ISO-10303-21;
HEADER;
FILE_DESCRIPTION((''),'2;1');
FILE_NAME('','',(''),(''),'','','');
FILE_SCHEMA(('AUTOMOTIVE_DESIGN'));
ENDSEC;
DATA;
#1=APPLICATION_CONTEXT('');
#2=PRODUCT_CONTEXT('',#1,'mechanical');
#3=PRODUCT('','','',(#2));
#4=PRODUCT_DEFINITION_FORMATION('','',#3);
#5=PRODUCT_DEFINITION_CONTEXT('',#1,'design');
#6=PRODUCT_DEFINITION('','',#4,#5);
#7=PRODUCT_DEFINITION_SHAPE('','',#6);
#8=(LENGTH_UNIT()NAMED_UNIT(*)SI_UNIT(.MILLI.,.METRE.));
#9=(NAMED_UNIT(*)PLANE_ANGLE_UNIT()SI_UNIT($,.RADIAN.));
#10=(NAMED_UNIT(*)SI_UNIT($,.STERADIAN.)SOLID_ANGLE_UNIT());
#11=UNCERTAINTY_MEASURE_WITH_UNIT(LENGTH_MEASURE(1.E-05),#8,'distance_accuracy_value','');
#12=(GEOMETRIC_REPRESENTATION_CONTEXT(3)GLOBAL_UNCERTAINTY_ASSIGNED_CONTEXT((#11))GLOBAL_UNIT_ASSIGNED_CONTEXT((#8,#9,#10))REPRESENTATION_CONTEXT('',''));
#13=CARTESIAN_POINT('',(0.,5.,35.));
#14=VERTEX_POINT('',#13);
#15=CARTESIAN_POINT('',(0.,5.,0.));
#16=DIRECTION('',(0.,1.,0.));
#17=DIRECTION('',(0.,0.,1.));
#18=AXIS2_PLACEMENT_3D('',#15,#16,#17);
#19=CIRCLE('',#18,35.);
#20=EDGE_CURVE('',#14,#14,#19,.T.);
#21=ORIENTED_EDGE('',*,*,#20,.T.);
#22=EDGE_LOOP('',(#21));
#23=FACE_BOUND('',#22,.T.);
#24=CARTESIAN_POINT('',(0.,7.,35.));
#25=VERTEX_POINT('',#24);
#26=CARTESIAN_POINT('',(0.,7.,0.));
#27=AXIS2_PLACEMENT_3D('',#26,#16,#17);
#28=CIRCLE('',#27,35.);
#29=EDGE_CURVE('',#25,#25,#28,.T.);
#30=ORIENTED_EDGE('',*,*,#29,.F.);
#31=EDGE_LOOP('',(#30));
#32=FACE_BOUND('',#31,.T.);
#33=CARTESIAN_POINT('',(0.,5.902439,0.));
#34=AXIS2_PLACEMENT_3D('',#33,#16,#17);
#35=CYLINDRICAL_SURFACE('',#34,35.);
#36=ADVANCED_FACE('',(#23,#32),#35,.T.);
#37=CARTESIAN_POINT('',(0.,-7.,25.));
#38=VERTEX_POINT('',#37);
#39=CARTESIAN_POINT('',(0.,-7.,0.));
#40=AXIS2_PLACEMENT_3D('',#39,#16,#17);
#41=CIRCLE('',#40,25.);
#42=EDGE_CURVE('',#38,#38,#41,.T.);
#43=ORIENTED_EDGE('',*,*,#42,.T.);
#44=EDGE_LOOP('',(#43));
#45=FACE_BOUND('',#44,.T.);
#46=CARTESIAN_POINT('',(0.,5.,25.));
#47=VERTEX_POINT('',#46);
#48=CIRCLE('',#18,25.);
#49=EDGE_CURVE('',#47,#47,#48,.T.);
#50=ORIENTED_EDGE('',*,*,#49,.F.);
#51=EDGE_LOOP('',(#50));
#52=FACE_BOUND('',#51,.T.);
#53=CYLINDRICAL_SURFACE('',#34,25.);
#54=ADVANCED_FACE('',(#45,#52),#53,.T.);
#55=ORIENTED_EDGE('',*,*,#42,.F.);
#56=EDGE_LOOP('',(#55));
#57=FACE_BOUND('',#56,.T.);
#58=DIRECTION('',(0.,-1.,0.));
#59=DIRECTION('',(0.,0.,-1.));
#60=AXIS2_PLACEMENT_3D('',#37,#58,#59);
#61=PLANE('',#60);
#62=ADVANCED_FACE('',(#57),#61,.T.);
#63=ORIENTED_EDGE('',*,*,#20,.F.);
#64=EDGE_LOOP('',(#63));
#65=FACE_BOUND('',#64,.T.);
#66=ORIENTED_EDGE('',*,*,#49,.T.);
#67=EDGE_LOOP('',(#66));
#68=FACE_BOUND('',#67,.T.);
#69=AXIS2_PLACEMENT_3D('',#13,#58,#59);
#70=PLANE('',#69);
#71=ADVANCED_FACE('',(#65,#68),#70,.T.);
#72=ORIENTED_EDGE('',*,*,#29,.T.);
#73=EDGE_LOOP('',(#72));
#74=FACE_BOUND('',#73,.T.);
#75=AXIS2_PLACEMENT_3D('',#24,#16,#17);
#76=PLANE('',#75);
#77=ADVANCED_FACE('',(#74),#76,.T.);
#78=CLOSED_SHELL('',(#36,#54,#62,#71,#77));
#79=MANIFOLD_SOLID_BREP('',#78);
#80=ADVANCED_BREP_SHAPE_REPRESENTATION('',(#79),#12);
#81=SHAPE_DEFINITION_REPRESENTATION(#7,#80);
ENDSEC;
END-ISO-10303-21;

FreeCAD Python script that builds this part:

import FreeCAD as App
import Part
import Sketcher


def add_polygon(sketch, points):
    """Adds a closed chain of lines whose ends are joined by coincident constraints."""
    first, n = sketch.GeometryCount, len(points)
    for a, b in zip(points, points[1:] + points[:1]):
        sketch.addGeometry(Part.LineSegment(App.Vector(*a, 0), App.Vector(*b, 0)), False)
    for i in range(n):
        sketch.addConstraint(Sketcher.Constraint("Coincident", first + i, 2, first + (i + 1) % n, 1))

doc = App.newDocument("Part")
params = doc.addObject("Spreadsheet::Sheet", "Params")
for row, (alias, value) in enumerate([
    ("sketch1_width", "2 mm"),
    ("sketch1_width2", "12 mm"),
    ("sketch1_height", "10 mm"),
    ("sketch1_height2", "25 mm"),
    ("revolution_angle", "360 deg"),
], start=1):
    params.set(f"A{row}", alias)
    params.set(f"B{row}", "=" + value)
    params.setAlias(f"B{row}", alias)

body = doc.addObject("PartDesign::Body", "Body")

# Sketch on YZ plane
sketch1 = doc.addObject("Sketcher::SketchObject", "Sketch")
body.addObject(sketch1)
sketch1.AttachmentSupport = (doc.YZ_Plane, [""])
sketch1.MapMode = "FlatFace"
add_polygon(sketch1, [(7, 35), (5, 35), (5, 25), (-7, 25), (-7, 0), (7, 0)])  # lines 0-5
sketch1.addConstraint(Sketcher.Constraint("Horizontal", 0))
sketch1.addConstraint(Sketcher.Constraint("Vertical", 1))
sketch1.addConstraint(Sketcher.Constraint("Horizontal", 2))
sketch1.addConstraint(Sketcher.Constraint("Vertical", 3))
sketch1.addConstraint(Sketcher.Constraint("Horizontal", 4))
sketch1.addConstraint(Sketcher.Constraint("Vertical", 5))
sketch1.addConstraint(Sketcher.Constraint("Symmetric", 3, 2, 4, 2, -1, 1))
sketch1.addConstraint(Sketcher.Constraint("DistanceX", 0, 2, 0, 1, 2.0))
sketch1.addConstraint(Sketcher.Constraint("DistanceX", 2, 2, 2, 1, 12.0))
sketch1.addConstraint(Sketcher.Constraint("DistanceY", 1, 2, 1, 1, 10.0))
sketch1.addConstraint(Sketcher.Constraint("DistanceY", 3, 2, 3, 1, 25.0))
sketch1.setExpression("Constraints[13]", "Params.sketch1_width")
sketch1.setExpression("Constraints[14]", "Params.sketch1_width2")
sketch1.setExpression("Constraints[15]", "Params.sketch1_height")
sketch1.setExpression("Constraints[16]", "Params.sketch1_height2")
revolution = doc.addObject("PartDesign::Revolution", "Revolution")
body.addObject(revolution)
revolution.Profile = sketch1
revolution.ReferenceAxis = (sketch1, ["H_Axis"])
revolution.setExpression("Angle", "Params.revolution_angle")

doc.recompute()
